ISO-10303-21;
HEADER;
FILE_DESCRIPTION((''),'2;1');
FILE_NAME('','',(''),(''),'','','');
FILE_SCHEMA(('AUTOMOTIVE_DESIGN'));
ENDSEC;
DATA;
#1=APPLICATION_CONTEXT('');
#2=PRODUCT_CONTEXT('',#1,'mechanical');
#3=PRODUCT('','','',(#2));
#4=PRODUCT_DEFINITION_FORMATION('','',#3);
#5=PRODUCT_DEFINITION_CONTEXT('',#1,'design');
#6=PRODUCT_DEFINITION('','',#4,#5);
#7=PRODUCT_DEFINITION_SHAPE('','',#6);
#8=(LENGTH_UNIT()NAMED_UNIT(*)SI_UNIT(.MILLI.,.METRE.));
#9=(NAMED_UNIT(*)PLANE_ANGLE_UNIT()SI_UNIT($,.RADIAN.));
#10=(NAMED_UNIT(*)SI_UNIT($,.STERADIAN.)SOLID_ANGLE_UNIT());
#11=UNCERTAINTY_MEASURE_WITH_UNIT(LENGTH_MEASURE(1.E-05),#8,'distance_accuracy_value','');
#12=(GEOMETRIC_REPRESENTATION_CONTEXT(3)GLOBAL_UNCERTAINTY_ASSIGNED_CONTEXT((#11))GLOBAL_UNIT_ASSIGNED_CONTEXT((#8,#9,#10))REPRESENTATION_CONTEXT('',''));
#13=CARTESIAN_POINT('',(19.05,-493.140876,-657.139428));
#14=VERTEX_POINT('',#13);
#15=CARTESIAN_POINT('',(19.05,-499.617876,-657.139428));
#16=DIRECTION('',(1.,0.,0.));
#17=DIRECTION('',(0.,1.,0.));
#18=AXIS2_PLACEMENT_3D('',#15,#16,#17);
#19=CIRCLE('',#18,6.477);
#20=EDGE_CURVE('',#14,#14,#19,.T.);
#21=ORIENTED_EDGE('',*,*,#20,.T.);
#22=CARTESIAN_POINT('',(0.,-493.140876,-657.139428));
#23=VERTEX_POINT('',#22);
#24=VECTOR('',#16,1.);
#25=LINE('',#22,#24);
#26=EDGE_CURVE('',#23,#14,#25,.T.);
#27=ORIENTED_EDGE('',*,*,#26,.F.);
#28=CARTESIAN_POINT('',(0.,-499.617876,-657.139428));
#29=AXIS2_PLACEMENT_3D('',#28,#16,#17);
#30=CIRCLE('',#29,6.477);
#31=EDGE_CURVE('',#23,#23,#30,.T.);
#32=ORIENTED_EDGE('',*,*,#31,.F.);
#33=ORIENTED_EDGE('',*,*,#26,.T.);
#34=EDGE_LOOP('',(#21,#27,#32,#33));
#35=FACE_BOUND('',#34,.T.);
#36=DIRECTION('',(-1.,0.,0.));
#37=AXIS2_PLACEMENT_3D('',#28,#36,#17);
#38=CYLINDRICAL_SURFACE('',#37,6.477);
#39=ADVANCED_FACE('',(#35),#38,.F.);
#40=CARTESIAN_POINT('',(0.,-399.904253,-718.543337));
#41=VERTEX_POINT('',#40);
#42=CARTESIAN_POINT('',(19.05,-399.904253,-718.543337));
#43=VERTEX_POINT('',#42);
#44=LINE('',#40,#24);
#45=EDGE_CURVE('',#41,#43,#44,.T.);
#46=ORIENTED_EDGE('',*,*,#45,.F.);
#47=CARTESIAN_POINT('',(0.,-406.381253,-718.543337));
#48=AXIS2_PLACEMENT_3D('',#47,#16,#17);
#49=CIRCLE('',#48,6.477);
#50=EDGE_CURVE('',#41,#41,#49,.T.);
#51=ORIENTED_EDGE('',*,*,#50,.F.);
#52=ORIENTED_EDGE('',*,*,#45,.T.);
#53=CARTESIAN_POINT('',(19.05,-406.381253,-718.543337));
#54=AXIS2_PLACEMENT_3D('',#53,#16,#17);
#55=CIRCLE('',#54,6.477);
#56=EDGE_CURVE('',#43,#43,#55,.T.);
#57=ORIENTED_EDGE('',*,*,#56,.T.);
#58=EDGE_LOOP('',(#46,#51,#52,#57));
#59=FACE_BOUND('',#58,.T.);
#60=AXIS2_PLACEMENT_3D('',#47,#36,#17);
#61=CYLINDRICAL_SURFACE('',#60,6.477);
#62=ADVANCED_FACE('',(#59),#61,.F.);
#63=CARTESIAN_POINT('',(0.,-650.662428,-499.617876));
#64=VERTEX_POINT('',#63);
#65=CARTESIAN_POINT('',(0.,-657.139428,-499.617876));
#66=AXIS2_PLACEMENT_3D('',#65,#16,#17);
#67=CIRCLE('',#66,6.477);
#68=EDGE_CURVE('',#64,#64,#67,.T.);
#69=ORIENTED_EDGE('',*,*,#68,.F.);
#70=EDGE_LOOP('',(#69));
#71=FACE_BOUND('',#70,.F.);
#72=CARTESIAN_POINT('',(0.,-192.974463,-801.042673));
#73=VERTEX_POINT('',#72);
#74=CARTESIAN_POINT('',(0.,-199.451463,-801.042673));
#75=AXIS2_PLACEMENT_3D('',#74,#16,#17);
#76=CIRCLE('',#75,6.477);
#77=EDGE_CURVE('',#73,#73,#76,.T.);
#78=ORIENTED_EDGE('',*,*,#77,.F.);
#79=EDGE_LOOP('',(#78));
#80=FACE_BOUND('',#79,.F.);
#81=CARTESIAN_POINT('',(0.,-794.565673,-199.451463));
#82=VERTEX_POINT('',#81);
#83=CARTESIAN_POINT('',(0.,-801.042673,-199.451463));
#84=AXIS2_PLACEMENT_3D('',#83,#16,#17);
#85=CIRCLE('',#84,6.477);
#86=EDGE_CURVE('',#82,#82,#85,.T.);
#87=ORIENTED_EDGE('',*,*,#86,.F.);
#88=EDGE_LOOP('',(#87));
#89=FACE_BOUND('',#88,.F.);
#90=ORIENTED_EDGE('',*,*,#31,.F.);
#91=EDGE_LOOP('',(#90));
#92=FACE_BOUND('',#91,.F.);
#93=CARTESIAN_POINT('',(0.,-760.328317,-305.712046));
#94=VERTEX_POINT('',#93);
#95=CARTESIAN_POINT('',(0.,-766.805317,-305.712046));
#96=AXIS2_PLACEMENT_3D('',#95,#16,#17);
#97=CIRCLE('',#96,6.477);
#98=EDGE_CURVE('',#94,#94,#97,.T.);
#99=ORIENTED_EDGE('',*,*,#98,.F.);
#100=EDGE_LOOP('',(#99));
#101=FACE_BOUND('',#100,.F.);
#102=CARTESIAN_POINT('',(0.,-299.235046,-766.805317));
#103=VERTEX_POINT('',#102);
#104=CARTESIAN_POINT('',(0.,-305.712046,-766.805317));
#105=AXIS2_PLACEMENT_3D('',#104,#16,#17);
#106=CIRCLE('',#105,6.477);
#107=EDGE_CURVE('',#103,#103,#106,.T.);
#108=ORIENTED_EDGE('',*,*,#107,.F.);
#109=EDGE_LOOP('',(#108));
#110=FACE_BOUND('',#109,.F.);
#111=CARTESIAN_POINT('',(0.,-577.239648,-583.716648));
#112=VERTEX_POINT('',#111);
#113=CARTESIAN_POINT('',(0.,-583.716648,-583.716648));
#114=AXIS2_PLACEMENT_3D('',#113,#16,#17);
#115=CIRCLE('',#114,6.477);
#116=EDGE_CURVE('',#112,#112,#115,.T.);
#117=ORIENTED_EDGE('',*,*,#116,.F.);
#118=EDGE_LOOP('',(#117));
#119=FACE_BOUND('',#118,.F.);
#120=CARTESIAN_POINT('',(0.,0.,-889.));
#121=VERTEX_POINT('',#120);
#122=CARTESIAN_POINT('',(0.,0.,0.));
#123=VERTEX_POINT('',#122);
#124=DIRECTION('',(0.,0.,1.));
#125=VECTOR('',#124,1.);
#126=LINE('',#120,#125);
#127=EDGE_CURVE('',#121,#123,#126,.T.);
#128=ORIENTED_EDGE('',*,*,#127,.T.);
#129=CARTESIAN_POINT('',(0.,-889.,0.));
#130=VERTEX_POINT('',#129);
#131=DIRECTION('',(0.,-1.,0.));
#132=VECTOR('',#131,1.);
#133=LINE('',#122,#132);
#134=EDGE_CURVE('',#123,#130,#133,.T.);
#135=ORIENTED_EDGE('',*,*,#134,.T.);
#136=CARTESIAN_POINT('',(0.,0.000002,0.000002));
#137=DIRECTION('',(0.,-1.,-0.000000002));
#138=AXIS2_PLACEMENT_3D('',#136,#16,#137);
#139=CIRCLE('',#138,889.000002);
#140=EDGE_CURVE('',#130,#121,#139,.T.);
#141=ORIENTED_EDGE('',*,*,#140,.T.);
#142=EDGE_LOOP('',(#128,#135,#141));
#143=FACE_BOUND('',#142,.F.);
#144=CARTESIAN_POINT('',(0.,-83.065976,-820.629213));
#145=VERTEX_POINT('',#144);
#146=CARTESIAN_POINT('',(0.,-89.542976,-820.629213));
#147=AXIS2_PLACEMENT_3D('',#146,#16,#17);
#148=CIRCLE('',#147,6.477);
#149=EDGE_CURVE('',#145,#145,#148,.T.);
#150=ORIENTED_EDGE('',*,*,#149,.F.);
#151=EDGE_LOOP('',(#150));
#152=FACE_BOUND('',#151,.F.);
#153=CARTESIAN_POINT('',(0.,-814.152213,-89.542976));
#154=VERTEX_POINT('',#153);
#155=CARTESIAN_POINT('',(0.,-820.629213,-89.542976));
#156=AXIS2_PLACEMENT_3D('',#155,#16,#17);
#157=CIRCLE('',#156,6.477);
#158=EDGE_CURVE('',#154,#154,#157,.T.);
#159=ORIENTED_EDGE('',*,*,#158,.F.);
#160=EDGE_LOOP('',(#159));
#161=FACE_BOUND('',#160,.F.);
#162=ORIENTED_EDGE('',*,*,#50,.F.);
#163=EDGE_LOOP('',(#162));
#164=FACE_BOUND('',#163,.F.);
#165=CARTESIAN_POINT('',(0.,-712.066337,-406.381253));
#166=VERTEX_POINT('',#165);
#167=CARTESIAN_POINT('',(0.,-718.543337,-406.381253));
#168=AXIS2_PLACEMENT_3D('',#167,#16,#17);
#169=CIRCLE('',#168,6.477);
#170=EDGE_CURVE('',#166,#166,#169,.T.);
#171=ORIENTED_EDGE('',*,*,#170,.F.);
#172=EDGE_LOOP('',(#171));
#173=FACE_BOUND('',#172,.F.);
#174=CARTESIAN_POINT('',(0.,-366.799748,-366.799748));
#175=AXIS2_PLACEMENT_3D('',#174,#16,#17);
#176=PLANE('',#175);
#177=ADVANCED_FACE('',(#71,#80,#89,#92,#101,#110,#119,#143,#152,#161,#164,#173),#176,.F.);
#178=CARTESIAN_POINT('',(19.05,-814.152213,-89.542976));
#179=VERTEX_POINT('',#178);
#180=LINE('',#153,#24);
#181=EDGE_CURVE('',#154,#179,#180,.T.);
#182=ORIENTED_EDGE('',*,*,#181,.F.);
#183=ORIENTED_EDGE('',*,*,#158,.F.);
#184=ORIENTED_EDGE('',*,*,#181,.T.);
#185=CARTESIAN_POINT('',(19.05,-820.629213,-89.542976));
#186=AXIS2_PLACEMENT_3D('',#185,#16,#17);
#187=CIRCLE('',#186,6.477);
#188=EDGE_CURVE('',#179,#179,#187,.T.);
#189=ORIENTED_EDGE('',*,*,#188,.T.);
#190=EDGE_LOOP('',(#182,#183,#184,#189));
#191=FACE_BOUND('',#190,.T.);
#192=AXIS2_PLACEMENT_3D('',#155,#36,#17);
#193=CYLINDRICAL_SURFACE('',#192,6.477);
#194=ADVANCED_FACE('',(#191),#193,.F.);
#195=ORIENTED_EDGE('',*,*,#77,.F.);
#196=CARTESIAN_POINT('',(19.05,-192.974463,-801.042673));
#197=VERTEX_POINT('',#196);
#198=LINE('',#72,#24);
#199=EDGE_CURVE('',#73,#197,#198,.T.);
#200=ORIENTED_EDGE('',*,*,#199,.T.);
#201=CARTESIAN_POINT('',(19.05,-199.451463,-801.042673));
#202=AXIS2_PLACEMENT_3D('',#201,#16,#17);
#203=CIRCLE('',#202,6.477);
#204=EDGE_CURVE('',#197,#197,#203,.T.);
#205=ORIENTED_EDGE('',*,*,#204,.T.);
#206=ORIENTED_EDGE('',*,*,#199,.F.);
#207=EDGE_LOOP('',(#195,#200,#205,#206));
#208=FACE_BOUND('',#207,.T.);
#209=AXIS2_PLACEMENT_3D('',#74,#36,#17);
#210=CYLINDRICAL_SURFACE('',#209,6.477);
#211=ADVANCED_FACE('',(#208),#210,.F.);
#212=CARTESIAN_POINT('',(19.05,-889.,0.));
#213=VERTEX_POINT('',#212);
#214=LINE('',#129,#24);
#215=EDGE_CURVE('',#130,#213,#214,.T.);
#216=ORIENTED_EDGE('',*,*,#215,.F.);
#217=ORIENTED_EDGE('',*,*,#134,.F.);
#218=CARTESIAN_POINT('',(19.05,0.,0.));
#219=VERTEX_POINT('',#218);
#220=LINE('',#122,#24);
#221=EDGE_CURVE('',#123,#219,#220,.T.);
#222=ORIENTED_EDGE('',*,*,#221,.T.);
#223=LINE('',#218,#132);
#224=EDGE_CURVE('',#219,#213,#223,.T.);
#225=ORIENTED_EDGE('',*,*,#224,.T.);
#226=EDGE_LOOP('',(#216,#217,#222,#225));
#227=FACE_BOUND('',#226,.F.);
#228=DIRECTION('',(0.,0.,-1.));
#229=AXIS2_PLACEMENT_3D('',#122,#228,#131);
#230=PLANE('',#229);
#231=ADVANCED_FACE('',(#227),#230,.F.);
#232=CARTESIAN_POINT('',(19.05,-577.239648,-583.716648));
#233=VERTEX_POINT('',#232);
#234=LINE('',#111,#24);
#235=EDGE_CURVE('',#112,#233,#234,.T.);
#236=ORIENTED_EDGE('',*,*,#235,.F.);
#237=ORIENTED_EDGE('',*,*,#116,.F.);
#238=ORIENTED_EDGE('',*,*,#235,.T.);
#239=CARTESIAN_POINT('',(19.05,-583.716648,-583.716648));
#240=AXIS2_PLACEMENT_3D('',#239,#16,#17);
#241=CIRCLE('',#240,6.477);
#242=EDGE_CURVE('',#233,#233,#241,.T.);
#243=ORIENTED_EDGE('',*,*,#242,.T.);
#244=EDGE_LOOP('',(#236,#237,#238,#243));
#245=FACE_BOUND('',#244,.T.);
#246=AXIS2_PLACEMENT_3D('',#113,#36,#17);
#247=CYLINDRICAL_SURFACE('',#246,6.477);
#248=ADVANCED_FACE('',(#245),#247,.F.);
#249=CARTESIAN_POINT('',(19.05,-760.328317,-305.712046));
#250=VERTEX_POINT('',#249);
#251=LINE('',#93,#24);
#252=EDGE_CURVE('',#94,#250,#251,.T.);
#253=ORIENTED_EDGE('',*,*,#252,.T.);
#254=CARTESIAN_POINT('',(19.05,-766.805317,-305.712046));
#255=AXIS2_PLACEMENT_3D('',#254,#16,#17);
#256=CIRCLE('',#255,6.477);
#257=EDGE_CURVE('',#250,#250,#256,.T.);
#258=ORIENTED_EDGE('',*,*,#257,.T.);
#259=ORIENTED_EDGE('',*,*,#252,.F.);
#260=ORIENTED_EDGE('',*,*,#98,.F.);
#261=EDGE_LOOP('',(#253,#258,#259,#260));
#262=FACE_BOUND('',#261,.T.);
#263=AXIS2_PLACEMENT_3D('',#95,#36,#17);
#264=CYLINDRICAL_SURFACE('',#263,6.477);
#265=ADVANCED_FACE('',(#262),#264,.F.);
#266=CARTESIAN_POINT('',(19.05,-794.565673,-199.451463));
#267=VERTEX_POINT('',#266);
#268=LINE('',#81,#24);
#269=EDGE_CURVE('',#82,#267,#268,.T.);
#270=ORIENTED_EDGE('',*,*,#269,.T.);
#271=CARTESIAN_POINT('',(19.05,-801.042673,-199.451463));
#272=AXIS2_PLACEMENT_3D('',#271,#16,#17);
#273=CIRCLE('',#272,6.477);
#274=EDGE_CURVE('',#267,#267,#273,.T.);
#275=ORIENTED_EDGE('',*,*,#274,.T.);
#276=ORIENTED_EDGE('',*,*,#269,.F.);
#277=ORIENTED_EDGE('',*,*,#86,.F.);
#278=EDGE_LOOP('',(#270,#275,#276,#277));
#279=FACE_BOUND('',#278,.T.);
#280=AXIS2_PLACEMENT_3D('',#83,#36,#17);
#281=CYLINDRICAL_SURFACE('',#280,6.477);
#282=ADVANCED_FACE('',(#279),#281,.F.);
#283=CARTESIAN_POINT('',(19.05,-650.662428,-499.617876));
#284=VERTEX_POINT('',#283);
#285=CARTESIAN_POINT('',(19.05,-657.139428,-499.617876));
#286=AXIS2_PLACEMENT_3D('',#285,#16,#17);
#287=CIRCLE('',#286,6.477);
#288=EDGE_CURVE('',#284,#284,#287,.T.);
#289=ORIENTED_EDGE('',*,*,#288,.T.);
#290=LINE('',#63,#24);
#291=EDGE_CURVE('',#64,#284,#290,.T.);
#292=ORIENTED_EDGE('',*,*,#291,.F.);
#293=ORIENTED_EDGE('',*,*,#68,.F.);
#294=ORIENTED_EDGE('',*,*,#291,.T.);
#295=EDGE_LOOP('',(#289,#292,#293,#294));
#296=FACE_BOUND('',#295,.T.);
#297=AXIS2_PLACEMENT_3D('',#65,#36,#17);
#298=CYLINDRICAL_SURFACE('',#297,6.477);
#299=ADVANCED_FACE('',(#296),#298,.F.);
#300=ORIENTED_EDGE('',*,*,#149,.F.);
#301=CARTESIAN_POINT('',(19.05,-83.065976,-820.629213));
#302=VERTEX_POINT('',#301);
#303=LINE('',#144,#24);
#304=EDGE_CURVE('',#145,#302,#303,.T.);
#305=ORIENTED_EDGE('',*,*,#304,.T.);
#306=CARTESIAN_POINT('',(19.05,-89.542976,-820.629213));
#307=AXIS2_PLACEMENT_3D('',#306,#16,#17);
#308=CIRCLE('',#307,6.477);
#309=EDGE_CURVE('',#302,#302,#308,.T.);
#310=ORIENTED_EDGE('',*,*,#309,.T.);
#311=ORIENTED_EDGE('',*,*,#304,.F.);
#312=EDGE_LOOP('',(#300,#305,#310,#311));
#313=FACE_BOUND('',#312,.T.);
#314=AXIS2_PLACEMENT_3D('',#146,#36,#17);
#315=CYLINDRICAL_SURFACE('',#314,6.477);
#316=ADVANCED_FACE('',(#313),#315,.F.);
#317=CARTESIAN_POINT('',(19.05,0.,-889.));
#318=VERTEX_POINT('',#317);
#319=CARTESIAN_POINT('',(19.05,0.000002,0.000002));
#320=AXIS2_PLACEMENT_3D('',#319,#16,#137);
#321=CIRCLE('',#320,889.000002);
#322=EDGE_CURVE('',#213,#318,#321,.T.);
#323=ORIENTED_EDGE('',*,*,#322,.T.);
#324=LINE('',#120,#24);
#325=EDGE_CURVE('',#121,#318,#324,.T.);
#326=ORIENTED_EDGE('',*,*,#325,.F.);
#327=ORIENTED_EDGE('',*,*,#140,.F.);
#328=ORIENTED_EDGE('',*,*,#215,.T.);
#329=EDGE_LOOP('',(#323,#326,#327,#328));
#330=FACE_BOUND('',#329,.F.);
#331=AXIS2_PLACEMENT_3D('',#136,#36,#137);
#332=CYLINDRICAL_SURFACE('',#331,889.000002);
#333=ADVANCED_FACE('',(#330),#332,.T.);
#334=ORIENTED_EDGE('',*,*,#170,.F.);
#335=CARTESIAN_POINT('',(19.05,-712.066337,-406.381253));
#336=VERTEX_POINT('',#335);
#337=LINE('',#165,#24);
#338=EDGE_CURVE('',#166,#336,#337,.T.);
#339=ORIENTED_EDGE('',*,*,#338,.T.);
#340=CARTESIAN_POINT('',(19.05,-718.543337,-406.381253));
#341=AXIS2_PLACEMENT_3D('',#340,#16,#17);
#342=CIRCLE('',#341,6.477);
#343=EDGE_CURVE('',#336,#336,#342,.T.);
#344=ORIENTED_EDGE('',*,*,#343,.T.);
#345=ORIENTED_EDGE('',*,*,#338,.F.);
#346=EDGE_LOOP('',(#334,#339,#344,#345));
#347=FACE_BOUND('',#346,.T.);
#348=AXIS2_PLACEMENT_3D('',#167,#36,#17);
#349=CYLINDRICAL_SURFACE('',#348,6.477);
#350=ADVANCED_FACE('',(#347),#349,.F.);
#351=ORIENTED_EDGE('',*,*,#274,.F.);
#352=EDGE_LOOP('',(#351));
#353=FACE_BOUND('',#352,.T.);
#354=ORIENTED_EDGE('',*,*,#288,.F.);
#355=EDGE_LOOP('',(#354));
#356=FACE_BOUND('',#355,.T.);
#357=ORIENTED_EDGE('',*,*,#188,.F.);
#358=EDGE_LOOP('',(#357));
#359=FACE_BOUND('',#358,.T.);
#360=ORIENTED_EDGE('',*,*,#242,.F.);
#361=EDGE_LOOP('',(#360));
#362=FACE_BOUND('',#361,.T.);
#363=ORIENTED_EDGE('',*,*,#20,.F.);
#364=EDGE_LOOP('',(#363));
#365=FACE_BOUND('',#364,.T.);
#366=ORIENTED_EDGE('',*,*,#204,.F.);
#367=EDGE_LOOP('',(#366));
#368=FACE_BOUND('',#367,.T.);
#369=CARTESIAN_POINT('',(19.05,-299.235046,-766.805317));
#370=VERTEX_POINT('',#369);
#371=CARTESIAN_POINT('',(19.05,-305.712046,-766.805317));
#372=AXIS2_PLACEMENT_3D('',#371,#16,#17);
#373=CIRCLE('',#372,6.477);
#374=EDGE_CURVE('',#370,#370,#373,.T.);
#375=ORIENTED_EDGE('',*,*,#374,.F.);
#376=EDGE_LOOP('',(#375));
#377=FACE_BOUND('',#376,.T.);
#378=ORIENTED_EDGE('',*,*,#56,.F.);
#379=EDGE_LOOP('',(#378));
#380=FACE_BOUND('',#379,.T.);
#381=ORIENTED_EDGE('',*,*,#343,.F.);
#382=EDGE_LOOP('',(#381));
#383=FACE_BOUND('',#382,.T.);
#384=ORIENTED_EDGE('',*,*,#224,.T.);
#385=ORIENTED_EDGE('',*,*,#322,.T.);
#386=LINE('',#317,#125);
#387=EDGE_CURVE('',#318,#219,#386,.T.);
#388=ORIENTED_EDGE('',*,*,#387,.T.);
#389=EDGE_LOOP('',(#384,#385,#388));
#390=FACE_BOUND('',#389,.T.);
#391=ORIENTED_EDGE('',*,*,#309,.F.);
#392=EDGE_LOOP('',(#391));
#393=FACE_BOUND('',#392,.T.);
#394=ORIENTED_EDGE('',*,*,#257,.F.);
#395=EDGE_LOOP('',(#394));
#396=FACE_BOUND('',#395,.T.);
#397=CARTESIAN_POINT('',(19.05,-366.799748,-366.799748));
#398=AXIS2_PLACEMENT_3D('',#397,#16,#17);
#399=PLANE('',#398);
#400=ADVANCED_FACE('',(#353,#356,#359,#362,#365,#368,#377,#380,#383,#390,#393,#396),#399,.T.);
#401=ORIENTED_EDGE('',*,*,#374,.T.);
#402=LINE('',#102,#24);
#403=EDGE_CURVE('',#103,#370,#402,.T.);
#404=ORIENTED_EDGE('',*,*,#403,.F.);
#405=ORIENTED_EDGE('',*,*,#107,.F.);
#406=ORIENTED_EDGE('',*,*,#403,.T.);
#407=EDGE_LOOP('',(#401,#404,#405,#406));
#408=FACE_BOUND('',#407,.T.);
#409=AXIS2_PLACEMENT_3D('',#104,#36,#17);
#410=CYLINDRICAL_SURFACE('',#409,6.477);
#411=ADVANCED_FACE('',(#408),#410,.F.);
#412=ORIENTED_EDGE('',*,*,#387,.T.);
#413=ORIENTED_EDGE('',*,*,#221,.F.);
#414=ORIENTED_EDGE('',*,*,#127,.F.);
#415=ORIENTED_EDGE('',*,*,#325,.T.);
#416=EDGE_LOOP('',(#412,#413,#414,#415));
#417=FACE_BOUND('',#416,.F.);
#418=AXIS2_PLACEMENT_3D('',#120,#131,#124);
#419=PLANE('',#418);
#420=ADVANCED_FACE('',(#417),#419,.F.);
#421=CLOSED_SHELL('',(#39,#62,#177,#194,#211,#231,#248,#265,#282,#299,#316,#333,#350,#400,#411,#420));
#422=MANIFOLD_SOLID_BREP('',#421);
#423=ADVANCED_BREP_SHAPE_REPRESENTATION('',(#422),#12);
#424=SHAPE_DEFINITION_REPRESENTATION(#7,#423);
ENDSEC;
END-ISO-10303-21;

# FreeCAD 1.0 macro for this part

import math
import FreeCAD as App
import Part
import Sketcher
from FreeCAD import Vector
Q = App.Units.Quantity

doc = App.newDocument("Part")
body = doc.addObject("PartDesign::Body", "Body")

sketch1 = body.newObject("Sketcher::SketchObject", "Sketch")
sketch1.AttachmentSupport = (doc.getObject("YZ_Plane"), [""])
sketch1.MapMode = "FlatFace"
sketch1.addGeometry(Part.LineSegment(Vector(0, 0, 0), Vector(-889, 0, 0)), False)
sketch1.addGeometry(Part.ArcOfCircle(Part.Circle(Vector(0, 0, 0), Vector(0, 0, 1), 889), math.radians(-180), math.radians(-90)), False)
sketch1.addGeometry(Part.LineSegment(Vector(0, -889, 0), Vector(0, 0, 0)), False)
sketch1.addGeometry(Part.Circle(Vector(-500, -657, 0), Vector(0, 0, 1), 6), False)
sketch1.addGeometry(Part.Circle(Vector(-657, -500, 0), Vector(0, 0, 1), 6), False)
sketch1.addGeometry(Part.Circle(Vector(-584, -584, 0), Vector(0, 0, 1), 6), False)
sketch1.addGeometry(Part.Circle(Vector(-306, -767, 0), Vector(0, 0, 1), 6), False)
sketch1.addGeometry(Part.Circle(Vector(-406, -719, 0), Vector(0, 0, 1), 6), False)
sketch1.addGeometry(Part.Circle(Vector(-199, -801, 0), Vector(0, 0, 1), 6), False)
sketch1.addGeometry(Part.Circle(Vector(-90, -821, 0), Vector(0, 0, 1), 6), False)
sketch1.addGeometry(Part.Circle(Vector(-719, -406, 0), Vector(0, 0, 1), 6), False)
sketch1.addGeometry(Part.Circle(Vector(-767, -306, 0), Vector(0, 0, 1), 6), False)
sketch1.addGeometry(Part.Circle(Vector(-801, -199, 0), Vector(0, 0, 1), 6), False)
sketch1.addGeometry(Part.Circle(Vector(-821, -90, 0), Vector(0, 0, 1), 6), False)
sketch1.addConstraint(Sketcher.Constraint("Coincident", 0, 2, 1, 1))
sketch1.addConstraint(Sketcher.Constraint("Coincident", 1, 2, 2, 1))
sketch1.addConstraint(Sketcher.Constraint("Coincident", 2, 2, 0, 1))
sketch1.addConstraint(Sketcher.Constraint("Horizontal", 0))
sketch1.addConstraint(Sketcher.Constraint("Vertical", 2))
sketch1.addConstraint(Sketcher.Constraint("Coincident", 1, 3, -1, 1))
sketch1.addConstraint(Sketcher.Constraint("Coincident", 2, 2, -1, 1))
sketch1.addConstraint(Sketcher.Constraint("Equal", 3, 4))
sketch1.addConstraint(Sketcher.Constraint("Equal", 4, 5))
sketch1.addConstraint(Sketcher.Constraint("Equal", 5, 6))
sketch1.addConstraint(Sketcher.Constraint("Equal", 6, 7))
sketch1.addConstraint(Sketcher.Constraint("Equal", 7, 8))
sketch1.addConstraint(Sketcher.Constraint("Equal", 8, 9))
sketch1.addConstraint(Sketcher.Constraint("Equal", 9, 10))
sketch1.addConstraint(Sketcher.Constraint("Equal", 10, 11))
sketch1.addConstraint(Sketcher.Constraint("Equal", 11, 12))
sketch1.addConstraint(Sketcher.Constraint("Equal", 12, 13))
sketch1.addConstraint(Sketcher.Constraint("Radius", 1, Q("35.0000001 in")))
sketch1.addConstraint(Sketcher.Constraint("Diameter", 3, Q("0.51 in")))
sketch1.addConstraint(Sketcher.Constraint("DistanceX", 5, 3, 6, 3, 278.004602))
sketch1.addConstraint(Sketcher.Constraint("DistanceX", 3, 3, 9, 3, 410.0749))
sketch1.addConstraint(Sketcher.Constraint("DistanceY", 5, 3, 11, 3, 278.004602))
sketch1.addConstraint(Sketcher.Constraint("DistanceY", 4, 3, 13, 3, 410.0749))
sketch1.addConstraint(Sketcher.Constraint("DistanceY", 3, 3, -1, 1, 657.139428))
sketch1.addConstraint(Sketcher.Constraint("DistanceX", 4, 3, -1, 1, 657.139428))
sketch1.addConstraint(Sketcher.Constraint("DistanceX", 5, 3, -1, 1, 583.716648))
sketch1.addConstraint(Sketcher.Constraint("DistanceY", 5, 3, -1, 1, 583.716648))
sketch1.addConstraint(Sketcher.Constraint("DistanceX", 4, 3, 3, 3, 157.521552))
sketch1.addConstraint(Sketcher.Constraint("DistanceY", 3, 3, 4, 3, 157.521552))
sketch1.addConstraint(Sketcher.Constraint("DistanceY", 6, 3, 3, 3, 109.665889))
sketch1.addConstraint(Sketcher.Constraint("DistanceY", 7, 3, 3, 3, 61.403909))
sketch1.addConstraint(Sketcher.Constraint("DistanceX", 7, 3, 8, 3, 206.92979))
sketch1.addConstraint(Sketcher.Constraint("DistanceY", 9, 3, 8, 3, 19.58654))
sketch1.addConstraint(Sketcher.Constraint("DistanceX", 10, 3, 4, 3, 61.403909))
sketch1.addConstraint(Sketcher.Constraint("DistanceX", 11, 3, 10, 3, 48.26198))
sketch1.addConstraint(Sketcher.Constraint("DistanceY", 10, 3, 12, 3, 206.92979))
sketch1.addConstraint(Sketcher.Constraint("DistanceX", 13, 3, 12, 3, 19.58654))
sketch1.addConstraint(Sketcher.Constraint("DistanceX", 7, 3, -1, 1, 406.381253))
sketch1.addConstraint(Sketcher.Constraint("DistanceY", 8, 3, -1, 1, 801.042673))
sketch1.addConstraint(Sketcher.Constraint("DistanceY", 10, 3, -1, 1, 406.381253))
sketch1.addConstraint(Sketcher.Constraint("DistanceX", 12, 3, -1, 1, 801.042673))
pad1 = body.newObject("PartDesign::Pad", "Pad")
pad1.Profile = sketch1
pad1.Length = Q("0.75 in")

doc.recompute()
